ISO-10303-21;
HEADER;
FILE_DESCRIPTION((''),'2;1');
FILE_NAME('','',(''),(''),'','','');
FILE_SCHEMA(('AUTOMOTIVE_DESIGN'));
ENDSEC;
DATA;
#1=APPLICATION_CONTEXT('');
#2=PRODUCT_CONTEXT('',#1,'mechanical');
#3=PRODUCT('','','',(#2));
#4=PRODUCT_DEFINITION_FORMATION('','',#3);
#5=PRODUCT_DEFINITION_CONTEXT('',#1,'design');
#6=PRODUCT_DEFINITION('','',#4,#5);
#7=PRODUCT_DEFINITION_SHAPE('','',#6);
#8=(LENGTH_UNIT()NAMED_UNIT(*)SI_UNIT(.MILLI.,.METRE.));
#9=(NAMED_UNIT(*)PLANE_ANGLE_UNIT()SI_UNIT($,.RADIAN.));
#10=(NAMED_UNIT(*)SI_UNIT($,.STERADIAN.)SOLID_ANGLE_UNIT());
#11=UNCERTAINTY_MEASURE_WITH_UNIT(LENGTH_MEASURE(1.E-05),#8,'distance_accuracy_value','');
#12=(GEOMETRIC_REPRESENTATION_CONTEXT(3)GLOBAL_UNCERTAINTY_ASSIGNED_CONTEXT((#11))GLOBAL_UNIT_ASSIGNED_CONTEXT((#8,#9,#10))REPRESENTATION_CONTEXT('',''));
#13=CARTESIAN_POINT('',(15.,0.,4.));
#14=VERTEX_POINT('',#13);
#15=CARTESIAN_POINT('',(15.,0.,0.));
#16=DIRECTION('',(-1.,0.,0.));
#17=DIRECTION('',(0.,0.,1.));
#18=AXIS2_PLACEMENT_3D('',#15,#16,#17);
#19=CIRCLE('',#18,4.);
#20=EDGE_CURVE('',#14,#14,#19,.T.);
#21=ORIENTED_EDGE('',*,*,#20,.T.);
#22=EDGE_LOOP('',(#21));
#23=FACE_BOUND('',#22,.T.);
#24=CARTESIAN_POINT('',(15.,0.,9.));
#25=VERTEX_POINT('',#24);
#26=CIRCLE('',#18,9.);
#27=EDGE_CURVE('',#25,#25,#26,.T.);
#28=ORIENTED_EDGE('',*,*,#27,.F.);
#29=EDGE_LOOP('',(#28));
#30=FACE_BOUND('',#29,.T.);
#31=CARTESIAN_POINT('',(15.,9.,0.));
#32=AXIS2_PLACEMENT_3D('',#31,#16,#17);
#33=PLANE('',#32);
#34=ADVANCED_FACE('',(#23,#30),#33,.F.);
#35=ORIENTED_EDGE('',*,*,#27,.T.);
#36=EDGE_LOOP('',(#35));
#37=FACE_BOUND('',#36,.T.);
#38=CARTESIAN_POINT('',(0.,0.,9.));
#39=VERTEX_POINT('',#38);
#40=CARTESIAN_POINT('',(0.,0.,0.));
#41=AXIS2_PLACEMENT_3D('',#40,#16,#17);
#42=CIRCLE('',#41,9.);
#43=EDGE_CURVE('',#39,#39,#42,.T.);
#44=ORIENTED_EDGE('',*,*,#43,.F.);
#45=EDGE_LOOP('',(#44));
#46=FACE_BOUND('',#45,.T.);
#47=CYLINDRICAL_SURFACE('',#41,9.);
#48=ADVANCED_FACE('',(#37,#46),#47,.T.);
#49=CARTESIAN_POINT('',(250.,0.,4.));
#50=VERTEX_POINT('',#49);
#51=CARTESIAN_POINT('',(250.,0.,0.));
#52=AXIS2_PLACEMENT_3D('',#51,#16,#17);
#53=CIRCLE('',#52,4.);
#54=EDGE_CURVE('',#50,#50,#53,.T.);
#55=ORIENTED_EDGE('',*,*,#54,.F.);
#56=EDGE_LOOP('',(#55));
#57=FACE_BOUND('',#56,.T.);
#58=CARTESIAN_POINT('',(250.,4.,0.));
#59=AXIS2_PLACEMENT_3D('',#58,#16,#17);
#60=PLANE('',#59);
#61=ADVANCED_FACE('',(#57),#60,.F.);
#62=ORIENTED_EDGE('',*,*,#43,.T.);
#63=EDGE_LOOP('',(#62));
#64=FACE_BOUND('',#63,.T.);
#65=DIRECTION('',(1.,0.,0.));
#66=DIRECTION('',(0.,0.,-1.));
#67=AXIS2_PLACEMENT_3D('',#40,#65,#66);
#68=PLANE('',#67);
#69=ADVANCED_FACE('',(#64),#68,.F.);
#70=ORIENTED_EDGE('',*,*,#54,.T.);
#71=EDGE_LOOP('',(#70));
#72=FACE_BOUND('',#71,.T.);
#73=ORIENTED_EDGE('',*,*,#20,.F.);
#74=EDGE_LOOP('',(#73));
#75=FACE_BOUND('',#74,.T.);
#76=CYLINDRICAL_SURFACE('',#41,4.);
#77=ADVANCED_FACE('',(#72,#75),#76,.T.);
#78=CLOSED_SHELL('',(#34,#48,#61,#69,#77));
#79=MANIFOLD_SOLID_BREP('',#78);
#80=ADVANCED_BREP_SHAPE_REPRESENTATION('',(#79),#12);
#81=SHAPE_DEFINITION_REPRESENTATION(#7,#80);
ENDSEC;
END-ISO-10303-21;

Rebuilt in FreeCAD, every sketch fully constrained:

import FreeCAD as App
import Part
import Sketcher

V = App.Vector
Q = App.Units.Quantity


def add_polygon(sketch, points):
    """Adds a closed chain of lines whose ends are joined by coincident constraints."""
    first, n = sketch.GeometryCount, len(points)
    for a, b in zip(points, points[1:] + points[:1]):
        sketch.addGeometry(Part.LineSegment(App.Vector(*a, 0), App.Vector(*b, 0)), False)
    for i in range(n):
        sketch.addConstraint(Sketcher.Constraint("Coincident", first + i, 2, first + (i + 1) % n, 1))

doc = App.newDocument("Part")
body = doc.addObject("PartDesign::Body", "Body")

sketch1 = body.newObject("Sketcher::SketchObject", "Sketch")
sketch1.AttachmentSupport = (doc.getObject("XY_Plane"), [""])
sketch1.MapMode = "FlatFace"
add_polygon(sketch1, [(0, 9), (0, 0), (250, 0), (250, 4), (15, 4), (15, 9)])
sketch1.addConstraint([
    Sketcher.Constraint("Vertical", 0),
    Sketcher.Constraint("Horizontal", 1),
    Sketcher.Constraint("Vertical", 2),
    Sketcher.Constraint("Horizontal", 3),
    Sketcher.Constraint("Vertical", 4),
    Sketcher.Constraint("Horizontal", 5),
    Sketcher.Constraint("Coincident", 0, 2, -1, 1),
    Sketcher.Constraint("DistanceX", 1, 1, 1, 2, Q("250 mm")),
    Sketcher.Constraint("DistanceX", 3, 2, 3, 1, Q("235 mm")),
    Sketcher.Constraint("DistanceY", 0, 2, 0, 1, Q("9 mm")),
    Sketcher.Constraint("DistanceY", 2, 1, 2, 2, Q("4 mm")),
])
revolution = body.newObject("PartDesign::Revolution", "Revolution")
revolution.Profile = sketch1
revolution.ReferenceAxis = (sketch1, ["H_Axis"])
revolution.Angle = 360

doc.recompute()
